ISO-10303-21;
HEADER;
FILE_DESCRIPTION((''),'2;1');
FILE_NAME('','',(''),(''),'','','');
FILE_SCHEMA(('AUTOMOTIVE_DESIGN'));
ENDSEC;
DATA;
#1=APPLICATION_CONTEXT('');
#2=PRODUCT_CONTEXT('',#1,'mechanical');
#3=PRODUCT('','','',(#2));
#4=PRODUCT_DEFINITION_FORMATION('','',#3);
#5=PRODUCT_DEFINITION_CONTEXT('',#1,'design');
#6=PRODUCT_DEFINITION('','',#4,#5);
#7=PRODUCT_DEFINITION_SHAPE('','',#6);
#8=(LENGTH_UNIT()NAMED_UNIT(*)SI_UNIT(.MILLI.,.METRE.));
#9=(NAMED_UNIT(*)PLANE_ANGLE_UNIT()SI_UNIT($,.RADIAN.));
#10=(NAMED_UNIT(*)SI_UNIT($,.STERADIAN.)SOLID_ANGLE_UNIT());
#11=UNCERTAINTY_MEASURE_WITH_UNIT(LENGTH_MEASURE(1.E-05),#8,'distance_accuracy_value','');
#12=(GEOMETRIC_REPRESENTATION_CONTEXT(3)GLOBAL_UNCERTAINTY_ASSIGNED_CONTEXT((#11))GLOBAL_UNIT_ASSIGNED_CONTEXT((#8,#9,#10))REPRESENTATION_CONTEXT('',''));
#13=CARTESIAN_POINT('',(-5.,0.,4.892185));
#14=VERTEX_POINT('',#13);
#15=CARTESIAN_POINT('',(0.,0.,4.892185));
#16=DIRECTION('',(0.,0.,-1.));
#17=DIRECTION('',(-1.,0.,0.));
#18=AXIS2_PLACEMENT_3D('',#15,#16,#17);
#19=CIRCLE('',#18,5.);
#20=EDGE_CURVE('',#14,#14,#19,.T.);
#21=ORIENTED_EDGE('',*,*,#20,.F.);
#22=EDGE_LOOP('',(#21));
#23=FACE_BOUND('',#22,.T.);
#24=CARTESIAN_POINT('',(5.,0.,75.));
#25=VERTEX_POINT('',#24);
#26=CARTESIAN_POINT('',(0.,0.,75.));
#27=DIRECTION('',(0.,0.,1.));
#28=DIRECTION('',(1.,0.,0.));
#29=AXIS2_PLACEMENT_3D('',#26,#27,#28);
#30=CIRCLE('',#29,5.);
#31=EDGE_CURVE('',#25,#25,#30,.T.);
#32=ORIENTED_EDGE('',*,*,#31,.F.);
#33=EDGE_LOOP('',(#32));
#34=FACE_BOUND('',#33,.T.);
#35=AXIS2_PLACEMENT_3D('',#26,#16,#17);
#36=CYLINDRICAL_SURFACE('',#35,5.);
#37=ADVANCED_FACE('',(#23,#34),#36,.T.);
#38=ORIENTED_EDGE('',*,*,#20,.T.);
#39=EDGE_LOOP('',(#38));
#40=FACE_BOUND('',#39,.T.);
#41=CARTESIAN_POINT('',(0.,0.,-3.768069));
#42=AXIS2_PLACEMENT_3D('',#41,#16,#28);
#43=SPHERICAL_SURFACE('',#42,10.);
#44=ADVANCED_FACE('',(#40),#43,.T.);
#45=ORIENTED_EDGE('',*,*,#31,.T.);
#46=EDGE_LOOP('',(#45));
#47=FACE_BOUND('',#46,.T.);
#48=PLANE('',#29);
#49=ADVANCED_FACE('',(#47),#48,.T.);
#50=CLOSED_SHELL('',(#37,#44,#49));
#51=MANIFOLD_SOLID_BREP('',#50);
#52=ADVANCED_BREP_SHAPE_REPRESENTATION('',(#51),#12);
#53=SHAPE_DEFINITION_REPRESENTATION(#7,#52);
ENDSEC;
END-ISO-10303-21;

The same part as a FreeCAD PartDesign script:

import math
import FreeCAD as App
import Part
import Sketcher
from FreeCAD import Vector
Q = App.Units.Quantity

doc = App.newDocument("Part")
body = doc.addObject("PartDesign::Body", "Body")

# Sketch on XY plane
sketch1 = doc.addObject("Sketcher::SketchObject", "Sketch")
body.addObject(sketch1)
sketch1.AttachmentSupport = (doc.XY_Plane, [""])
sketch1.MapMode = "FlatFace"
sketch1.addGeometry(Part.Circle(Vector(0, 0, 0), Vector(0, 0, 1), 5), False)
sketch1.addConstraint(Sketcher.Constraint("Coincident", 0, 3, -1, 1))
sketch1.addConstraint(Sketcher.Constraint("Diameter", 0, Q("10 mm")))
pad1 = doc.addObject("PartDesign::Pad", "Pad")
body.addObject(pad1)
pad1.Profile = sketch1
pad1.Length = 75

# Sketch on XZ plane
sketch2 = doc.addObject("Sketcher::SketchObject", "Sketch001")
body.addObject(sketch2)
sketch2.AttachmentSupport = (doc.XZ_Plane, [""])
sketch2.MapMode = "FlatFace"
sketch2.addGeometry(Part.LineSegment(Vector(0, -14, 0), Vector(0, 6, 0)), False)
sketch2.addGeometry(Part.ArcOfCircle(Part.Circle(Vector(0, -4, 0), Vector(0, 0, 1), 10), math.radians(-90), math.radians(90)), False)
sketch2.addConstraint(Sketcher.Constraint("Coincident", 0, 1, 1, 1))
sketch2.addConstraint(Sketcher.Constraint("Coincident", 1, 2, 0, 2))
sketch2.addConstraint(Sketcher.Constraint("Vertical", 0))
sketch2.addConstraint(Sketcher.Constraint("PointOnObject", 1, 3, -2))
sketch2.addConstraint(Sketcher.Constraint("PointOnObject", 0, 1, -2))
sketch2.addConstraint(Sketcher.Constraint("Radius", 1, Q("10 mm")))
sketch2.addConstraint(Sketcher.Constraint("DistanceY", 1, 3, -1, 1, Q("3.768069 mm")))
revolution = doc.addObject("PartDesign::Revolution", "Revolution")
body.addObject(revolution)
revolution.Profile = sketch2
revolution.ReferenceAxis = (sketch2, ["V_Axis"])
revolution.Angle = 360

doc.recompute()
